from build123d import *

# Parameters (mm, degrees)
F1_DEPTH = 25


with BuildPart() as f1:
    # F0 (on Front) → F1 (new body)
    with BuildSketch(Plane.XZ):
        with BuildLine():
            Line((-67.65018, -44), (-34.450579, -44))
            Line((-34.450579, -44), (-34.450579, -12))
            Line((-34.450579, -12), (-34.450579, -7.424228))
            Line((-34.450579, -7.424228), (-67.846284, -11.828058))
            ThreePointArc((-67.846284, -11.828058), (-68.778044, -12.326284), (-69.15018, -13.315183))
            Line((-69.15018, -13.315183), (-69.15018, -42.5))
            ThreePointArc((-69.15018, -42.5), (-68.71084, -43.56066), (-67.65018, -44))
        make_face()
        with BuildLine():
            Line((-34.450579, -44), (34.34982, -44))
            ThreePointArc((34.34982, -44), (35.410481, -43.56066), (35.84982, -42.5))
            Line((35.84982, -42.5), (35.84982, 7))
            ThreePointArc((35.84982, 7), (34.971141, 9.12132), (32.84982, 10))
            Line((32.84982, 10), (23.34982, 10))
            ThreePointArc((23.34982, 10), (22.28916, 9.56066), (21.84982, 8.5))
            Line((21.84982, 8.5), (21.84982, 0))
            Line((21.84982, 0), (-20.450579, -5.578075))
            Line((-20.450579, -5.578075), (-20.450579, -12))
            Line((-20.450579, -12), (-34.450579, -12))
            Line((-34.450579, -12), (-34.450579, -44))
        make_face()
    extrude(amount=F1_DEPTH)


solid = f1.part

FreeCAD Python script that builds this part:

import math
import FreeCAD as App
import Part
import Sketcher

doc = App.newDocument("Part")
body = doc.addObject("PartDesign::Body", "Body")

# Sketch on XZ plane
sketch1 = body.newObject("Sketcher::SketchObject", "Sketch")
sketch1.AttachmentSupport = (doc.getObject("XZ_Plane"), [""])
sketch1.MapMode = "FlatFace"
sketch1.addGeometry([
    Part.LineSegment(App.Vector(-67.7, -44, 0), App.Vector(34.3, -44, 0)),  # 0
    Part.ArcOfCircle(Part.Circle(App.Vector(34.3, -42.5, 0), App.Vector(0, 0, 1), 1.5), math.radians(-90), math.radians(0)),  # 1
    Part.LineSegment(App.Vector(35.8, -42.5, 0), App.Vector(35.8, 7, 0)),  # 2
    Part.ArcOfCircle(Part.Circle(App.Vector(32.8, 7, 0), App.Vector(0, 0, 1), 3), math.radians(0), math.radians(90)),  # 3
    Part.LineSegment(App.Vector(32.8, 10, 0), App.Vector(23.3, 10, 0)),  # 4
    Part.ArcOfCircle(Part.Circle(App.Vector(23.3, 8.5, 0), App.Vector(0, 0, 1), 1.5), math.radians(90), math.radians(180)),  # 5
    Part.LineSegment(App.Vector(21.8, 8.5, 0), App.Vector(21.8, 0, 0)),  # 6
    Part.LineSegment(App.Vector(21.8, 0, 0), App.Vector(-20.5, -5.6, 0)),  # 7
    Part.LineSegment(App.Vector(-20.5, -5.6, 0), App.Vector(-20.5, -12, 0)),  # 8
    Part.LineSegment(App.Vector(-20.5, -12, 0), App.Vector(-34.5, -12, 0)),  # 9
    Part.LineSegment(App.Vector(-34.5, -12, 0), App.Vector(-34.5, -7.4, 0)),  # 10
    Part.LineSegment(App.Vector(-34.5, -7.4, 0), App.Vector(-67.8, -11.8, 0)),  # 11
    Part.ArcOfCircle(Part.Circle(App.Vector(-67.7, -13.3, 0), App.Vector(0, 0, 1), 1.5), math.radians(98), math.radians(180)),  # 12
    Part.LineSegment(App.Vector(-69.2, -13.3, 0), App.Vector(-69.2, -42.5, 0)),  # 13
    Part.ArcOfCircle(Part.Circle(App.Vector(-67.7, -42.5, 0), App.Vector(0, 0, 1), 1.5), math.radians(-180), math.radians(-90)),  # 14
], False)
sketch1.addConstraint([
    Sketcher.Constraint("Tangent", 0, 2, 1, 1),
    Sketcher.Constraint("Tangent", 1, 2, 2, 1),
    Sketcher.Constraint("Tangent", 2, 2, 3, 1),
    Sketcher.Constraint("Tangent", 3, 2, 4, 1),
    Sketcher.Constraint("Tangent", 4, 2, 5, 1),
    Sketcher.Constraint("Tangent", 5, 2, 6, 1),
    Sketcher.Constraint("Coincident", 6, 2, 7, 1),
    Sketcher.Constraint("Coincident", 7, 2, 8, 1),
    Sketcher.Constraint("Coincident", 8, 2, 9, 1),
    Sketcher.Constraint("Coincident", 9, 2, 10, 1),
    Sketcher.Constraint("Coincident", 10, 2, 11, 1),
    Sketcher.Constraint("Tangent", 11, 2, 12, 1),
    Sketcher.Constraint("Tangent", 12, 2, 13, 1),
    Sketcher.Constraint("Tangent", 13, 2, 14, 1),
    Sketcher.Constraint("Tangent", 14, 2, 0, 1),
    Sketcher.Constraint("Horizontal", 0),
    Sketcher.Constraint("Vertical", 2),
    Sketcher.Constraint("Horizontal", 4),
    Sketcher.Constraint("Vertical", 6),
    Sketcher.Constraint("Vertical", 8),
    Sketcher.Constraint("Horizontal", 9),
    Sketcher.Constraint("Vertical", 10),
    Sketcher.Constraint("Vertical", 13),
    Sketcher.Constraint("Equal", 1, 5),
    Sketcher.Constraint("Equal", 5, 12),
    Sketcher.Constraint("Equal", 12, 14),
    Sketcher.Constraint("PointOnObject", 6, 2, -1),
    Sketcher.Constraint("Parallel", 7, 11),
    Sketcher.Constraint("Radius", 3, 2.999999),
    Sketcher.Constraint("Radius", 1, 1.499999),
    Sketcher.Constraint("DistanceX", 0, 1, 0, 2, 102.0),
    Sketcher.Constraint("DistanceX", 9, 2, 9, 1, 14.0),
    Sketcher.Constraint("DistanceX", 4, 2, 4, 1, 9.5),
    Sketcher.Constraint("DistanceY", 2, 1, 2, 2, 49.5),
    Sketcher.Constraint("DistanceY", 6, 2, 6, 1, 8.5),
    Sketcher.Constraint("DistanceY", 8, 2, -1, 1, 12.0),
    Sketcher.Constraint("Distance", 7, 42.666599),
    Sketcher.Constraint("DistanceY", 10, 1, 10, 2, 4.575772),
    Sketcher.Constraint("DistanceX", 7, 2, 6, 2, 42.300399),
    Sketcher.Constraint("DistanceX", -1, 1, 1, 3, 34.349821),
])
pad1 = body.newObject("PartDesign::Pad", "Pad")
pad1.Profile = sketch1
pad1.Length = 25

doc.recompute()
